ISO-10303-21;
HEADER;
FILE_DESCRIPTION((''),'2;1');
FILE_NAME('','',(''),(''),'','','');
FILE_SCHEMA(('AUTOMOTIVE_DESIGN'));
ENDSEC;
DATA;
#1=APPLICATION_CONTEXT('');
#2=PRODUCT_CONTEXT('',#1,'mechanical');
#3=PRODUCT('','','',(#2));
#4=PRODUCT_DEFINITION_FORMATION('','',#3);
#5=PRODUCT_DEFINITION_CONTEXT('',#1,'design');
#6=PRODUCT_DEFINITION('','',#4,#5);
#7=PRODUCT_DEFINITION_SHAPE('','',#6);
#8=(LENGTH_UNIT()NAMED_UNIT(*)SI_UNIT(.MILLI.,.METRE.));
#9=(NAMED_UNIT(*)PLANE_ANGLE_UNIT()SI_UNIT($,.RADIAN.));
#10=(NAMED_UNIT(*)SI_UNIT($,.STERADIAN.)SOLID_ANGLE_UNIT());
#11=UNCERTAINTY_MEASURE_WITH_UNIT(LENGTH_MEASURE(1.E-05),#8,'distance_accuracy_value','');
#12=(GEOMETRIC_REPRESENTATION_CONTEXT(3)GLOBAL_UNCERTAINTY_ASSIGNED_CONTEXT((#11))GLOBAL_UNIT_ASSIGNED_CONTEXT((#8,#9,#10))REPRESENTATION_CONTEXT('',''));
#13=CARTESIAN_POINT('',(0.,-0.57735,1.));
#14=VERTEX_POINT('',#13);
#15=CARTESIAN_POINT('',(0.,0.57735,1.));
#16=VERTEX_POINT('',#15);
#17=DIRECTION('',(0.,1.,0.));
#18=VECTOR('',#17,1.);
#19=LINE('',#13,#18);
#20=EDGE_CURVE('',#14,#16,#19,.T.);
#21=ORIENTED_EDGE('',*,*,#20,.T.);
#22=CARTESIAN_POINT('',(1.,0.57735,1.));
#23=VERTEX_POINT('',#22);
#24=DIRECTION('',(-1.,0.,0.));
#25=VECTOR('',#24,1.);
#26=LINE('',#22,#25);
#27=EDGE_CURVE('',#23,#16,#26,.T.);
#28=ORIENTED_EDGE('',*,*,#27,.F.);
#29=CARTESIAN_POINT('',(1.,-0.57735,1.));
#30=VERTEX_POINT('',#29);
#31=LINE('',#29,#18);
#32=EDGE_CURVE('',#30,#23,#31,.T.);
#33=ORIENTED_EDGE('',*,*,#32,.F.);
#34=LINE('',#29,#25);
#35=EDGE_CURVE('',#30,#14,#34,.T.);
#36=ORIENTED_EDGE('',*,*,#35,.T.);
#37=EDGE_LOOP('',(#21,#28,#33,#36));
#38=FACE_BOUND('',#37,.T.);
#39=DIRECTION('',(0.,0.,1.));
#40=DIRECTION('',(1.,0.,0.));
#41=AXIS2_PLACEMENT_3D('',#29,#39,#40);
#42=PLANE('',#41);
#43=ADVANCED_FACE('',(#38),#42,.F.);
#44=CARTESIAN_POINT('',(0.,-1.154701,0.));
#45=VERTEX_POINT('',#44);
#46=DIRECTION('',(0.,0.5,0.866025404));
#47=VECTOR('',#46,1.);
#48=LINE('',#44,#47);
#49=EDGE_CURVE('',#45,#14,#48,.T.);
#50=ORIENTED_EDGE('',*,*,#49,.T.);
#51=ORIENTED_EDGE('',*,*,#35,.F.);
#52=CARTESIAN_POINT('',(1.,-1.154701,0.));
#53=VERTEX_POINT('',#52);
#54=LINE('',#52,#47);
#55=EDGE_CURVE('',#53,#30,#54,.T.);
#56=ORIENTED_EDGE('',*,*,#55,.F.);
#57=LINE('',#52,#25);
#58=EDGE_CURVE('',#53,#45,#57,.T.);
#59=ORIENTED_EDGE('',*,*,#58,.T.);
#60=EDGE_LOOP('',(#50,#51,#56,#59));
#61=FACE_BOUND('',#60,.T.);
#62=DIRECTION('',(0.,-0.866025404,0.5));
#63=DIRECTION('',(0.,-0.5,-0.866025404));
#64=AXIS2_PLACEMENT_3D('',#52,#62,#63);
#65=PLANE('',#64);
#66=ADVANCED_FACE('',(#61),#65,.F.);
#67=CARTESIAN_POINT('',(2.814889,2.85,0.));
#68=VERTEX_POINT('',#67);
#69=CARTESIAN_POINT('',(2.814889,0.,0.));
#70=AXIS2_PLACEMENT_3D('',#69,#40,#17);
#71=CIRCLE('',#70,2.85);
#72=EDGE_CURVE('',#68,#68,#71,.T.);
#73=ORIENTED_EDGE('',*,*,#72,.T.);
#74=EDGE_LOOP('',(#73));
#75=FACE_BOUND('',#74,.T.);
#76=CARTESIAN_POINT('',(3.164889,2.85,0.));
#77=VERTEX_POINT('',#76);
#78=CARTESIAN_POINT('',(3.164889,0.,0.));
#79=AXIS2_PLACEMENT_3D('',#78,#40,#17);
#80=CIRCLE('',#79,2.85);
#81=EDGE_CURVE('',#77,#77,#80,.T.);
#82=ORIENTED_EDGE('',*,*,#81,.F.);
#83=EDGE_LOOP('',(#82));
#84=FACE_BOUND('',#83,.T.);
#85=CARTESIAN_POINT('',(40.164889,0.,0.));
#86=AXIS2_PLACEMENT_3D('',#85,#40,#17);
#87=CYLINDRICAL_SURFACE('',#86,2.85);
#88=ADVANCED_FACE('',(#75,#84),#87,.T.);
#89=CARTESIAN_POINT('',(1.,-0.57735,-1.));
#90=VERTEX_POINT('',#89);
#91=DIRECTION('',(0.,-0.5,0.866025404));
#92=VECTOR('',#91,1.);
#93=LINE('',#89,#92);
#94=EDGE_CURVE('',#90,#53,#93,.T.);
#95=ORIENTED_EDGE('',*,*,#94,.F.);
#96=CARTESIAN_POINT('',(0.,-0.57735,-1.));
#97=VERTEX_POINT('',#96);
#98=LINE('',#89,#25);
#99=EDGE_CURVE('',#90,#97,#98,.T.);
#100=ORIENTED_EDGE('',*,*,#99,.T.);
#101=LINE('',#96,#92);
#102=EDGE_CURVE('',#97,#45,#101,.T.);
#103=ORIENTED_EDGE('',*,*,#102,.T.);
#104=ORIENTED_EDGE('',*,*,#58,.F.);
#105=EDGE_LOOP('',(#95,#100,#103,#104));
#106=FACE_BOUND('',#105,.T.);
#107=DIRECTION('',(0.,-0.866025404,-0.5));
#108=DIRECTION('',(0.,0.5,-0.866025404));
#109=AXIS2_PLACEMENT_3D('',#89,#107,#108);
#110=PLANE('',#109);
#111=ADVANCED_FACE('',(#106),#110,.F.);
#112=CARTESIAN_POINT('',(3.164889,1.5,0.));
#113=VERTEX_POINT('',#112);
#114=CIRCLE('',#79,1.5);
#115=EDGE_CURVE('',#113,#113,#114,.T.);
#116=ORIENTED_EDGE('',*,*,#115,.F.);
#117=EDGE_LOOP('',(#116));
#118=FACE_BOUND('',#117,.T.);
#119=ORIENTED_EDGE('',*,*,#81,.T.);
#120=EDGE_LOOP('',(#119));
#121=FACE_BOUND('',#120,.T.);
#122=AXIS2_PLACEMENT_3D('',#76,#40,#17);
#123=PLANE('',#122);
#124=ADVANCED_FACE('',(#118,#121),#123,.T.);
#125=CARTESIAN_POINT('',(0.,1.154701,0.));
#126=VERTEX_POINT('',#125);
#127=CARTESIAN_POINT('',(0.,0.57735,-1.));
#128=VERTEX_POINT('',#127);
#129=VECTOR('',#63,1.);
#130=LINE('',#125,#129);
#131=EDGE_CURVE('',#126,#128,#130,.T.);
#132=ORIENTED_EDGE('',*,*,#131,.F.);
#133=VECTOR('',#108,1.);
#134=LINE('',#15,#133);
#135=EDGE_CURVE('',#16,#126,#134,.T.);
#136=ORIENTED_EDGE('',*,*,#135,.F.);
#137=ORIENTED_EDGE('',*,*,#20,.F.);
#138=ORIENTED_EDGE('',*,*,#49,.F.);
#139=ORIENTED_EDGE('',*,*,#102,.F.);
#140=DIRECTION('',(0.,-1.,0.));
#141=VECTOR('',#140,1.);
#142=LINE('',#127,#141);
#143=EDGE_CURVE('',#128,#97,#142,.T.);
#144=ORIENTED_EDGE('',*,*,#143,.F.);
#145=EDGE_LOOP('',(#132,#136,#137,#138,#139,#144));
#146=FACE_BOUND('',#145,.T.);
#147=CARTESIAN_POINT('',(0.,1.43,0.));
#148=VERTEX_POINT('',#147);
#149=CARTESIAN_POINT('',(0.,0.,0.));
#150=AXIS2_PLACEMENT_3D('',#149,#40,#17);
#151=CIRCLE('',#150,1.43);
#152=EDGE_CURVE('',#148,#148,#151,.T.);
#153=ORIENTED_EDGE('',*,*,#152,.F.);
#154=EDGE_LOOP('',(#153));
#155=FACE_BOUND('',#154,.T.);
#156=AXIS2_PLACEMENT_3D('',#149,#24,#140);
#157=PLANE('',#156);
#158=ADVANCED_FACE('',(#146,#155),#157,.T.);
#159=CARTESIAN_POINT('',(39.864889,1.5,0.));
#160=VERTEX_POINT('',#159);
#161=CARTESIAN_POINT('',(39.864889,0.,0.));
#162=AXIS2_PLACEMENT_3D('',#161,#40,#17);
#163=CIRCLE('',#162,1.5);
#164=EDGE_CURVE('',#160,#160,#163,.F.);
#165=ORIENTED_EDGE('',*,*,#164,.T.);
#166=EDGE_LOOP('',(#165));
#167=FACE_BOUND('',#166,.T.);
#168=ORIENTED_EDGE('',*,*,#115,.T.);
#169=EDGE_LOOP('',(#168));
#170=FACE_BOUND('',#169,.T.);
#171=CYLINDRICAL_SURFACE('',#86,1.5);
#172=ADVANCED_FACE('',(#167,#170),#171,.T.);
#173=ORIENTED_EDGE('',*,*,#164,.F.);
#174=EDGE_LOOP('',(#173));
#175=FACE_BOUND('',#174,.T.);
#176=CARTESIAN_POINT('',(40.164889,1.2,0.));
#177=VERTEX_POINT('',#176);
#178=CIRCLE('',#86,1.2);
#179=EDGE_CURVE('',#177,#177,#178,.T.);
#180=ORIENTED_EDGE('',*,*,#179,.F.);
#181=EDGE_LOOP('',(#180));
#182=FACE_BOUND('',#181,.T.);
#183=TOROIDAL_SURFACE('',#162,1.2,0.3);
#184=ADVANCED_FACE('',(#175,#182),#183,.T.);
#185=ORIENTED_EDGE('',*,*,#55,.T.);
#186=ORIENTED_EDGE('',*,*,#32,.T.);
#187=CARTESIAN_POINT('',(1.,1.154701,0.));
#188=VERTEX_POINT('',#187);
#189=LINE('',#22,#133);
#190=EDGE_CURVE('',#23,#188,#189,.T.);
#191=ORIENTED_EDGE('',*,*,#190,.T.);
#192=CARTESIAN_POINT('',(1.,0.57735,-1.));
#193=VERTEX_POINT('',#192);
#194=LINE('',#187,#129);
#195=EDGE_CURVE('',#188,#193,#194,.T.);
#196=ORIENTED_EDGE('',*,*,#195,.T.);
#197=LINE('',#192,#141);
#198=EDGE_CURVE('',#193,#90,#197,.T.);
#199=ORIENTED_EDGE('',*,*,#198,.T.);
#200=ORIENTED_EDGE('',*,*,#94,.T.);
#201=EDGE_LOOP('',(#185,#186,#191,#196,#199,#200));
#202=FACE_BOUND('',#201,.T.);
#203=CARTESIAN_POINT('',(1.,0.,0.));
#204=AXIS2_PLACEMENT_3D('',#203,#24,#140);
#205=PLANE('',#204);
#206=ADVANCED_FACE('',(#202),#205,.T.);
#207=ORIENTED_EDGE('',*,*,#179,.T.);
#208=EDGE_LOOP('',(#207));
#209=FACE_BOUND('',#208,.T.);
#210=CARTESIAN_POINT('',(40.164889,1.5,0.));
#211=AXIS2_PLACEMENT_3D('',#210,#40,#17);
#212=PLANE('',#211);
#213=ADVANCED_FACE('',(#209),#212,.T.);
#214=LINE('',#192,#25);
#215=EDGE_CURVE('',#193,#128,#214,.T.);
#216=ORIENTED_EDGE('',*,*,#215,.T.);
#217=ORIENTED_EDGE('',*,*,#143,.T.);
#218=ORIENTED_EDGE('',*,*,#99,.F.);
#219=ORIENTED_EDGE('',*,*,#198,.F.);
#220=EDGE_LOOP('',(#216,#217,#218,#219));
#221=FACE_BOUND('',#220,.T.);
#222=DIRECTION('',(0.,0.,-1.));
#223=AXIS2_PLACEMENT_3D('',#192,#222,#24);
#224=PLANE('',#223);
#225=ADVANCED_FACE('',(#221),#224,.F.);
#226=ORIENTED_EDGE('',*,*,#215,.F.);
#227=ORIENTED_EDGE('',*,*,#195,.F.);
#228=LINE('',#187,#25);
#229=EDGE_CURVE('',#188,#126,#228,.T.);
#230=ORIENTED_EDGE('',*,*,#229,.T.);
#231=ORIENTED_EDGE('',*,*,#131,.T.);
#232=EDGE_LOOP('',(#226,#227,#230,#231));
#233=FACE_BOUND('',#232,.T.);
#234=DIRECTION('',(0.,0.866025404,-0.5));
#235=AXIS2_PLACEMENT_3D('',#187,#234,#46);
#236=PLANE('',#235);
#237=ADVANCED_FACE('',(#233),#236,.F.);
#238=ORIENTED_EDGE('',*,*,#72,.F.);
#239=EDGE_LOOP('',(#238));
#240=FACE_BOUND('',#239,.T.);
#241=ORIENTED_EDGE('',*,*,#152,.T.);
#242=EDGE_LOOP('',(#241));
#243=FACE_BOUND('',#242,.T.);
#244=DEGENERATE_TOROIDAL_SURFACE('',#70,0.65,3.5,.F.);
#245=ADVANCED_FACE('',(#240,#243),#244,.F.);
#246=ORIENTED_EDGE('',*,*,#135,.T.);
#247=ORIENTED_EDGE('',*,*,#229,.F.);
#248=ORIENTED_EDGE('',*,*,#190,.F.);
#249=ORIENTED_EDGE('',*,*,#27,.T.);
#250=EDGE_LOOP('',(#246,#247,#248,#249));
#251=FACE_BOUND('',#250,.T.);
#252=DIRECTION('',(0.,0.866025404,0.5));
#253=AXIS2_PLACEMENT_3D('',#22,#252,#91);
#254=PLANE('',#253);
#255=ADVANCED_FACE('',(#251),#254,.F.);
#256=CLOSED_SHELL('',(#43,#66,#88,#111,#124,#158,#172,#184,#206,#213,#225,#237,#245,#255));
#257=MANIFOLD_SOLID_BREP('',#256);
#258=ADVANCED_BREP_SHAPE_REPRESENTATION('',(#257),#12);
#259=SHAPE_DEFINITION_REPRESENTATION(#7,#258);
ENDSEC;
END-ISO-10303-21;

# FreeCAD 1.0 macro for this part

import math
import FreeCAD as App
import Part
import Sketcher
Q = App.Units.Quantity


def edges_at(feature, points):
    """Names of the edges that pass closest to the given points."""
    edges = feature.Shape.Edges
    near = lambda p: min(range(len(edges)), key=lambda i: edges[i].distToShape(Part.Vertex(*p))[0])
    return sorted({f"Edge{near(p) + 1}" for p in points})

doc = App.newDocument("Part")
body = doc.addObject("PartDesign::Body", "Body")

sketch1 = body.newObject("Sketcher::SketchObject", "Sketch")
sketch1.AttachmentSupport = (doc.getObject("XY_Plane"), [""])
sketch1.MapMode = "FlatFace"
sketch1.addGeometry([
    Part.LineSegment(App.Vector(0, 0, 0), App.Vector(40.16, 0, 0)),
    Part.LineSegment(App.Vector(40.16, 0, 0), App.Vector(40.16, 1.5, 0)),
    Part.LineSegment(App.Vector(40.16, 1.5, 0), App.Vector(3.16, 1.5, 0)),
    Part.LineSegment(App.Vector(3.16, 1.5, 0), App.Vector(3.16, 2.85, 0)),
    Part.LineSegment(App.Vector(3.16, 2.85, 0), App.Vector(2.81, 2.85, 0)),
    Part.ArcOfCircle(Part.Circle(App.Vector(2.81, -0.65, 0), App.Vector(0, 0, 1), 3.5), math.radians(90), math.radians(144)),
    Part.LineSegment(App.Vector(0, 1.43, 0), App.Vector(0, 0, 0)),
], False)
sketch1.addConstraint([
    Sketcher.Constraint("Coincident", 0, 2, 1, 1),
    Sketcher.Constraint("Coincident", 1, 2, 2, 1),
    Sketcher.Constraint("Coincident", 2, 2, 3, 1),
    Sketcher.Constraint("Coincident", 3, 2, 4, 1),
    Sketcher.Constraint("Tangent", 4, 2, 5, 1),
    Sketcher.Constraint("Coincident", 5, 2, 6, 1),
    Sketcher.Constraint("Coincident", 6, 2, 0, 1),
    Sketcher.Constraint("Horizontal", 0),
    Sketcher.Constraint("Vertical", 1),
    Sketcher.Constraint("Horizontal", 2),
    Sketcher.Constraint("Vertical", 3),
    Sketcher.Constraint("Horizontal", 4),
    Sketcher.Constraint("Vertical", 6),
    Sketcher.Constraint("Coincident", 6, 2, -1, 1),
    Sketcher.Constraint("Radius", 5, Q("3.5 mm")),
    Sketcher.Constraint("DistanceX", 2, 2, 2, 1, Q("37 mm")),
    Sketcher.Constraint("DistanceY", 1, 1, 1, 2, Q("1.5 mm")),
    Sketcher.Constraint("DistanceX", 4, 2, 4, 1, Q("0.35 mm")),
    Sketcher.Constraint("DistanceY", 3, 1, 3, 2, Q("1.35 mm")),
    Sketcher.Constraint("DistanceY", 6, 2, 6, 1, Q("1.43 mm")),
])
revolution = body.newObject("PartDesign::Revolution", "Revolution")
revolution.Profile = sketch1
revolution.ReferenceAxis = (sketch1, ["H_Axis"])
revolution.Angle = 360
doc.recompute()

fillet = body.newObject("PartDesign::Fillet", "Fillet")
fillet.Base = (revolution, edges_at(revolution, [(40.165, -1.5, 0)]))
fillet.Radius = 0.3

sketch2 = body.newObject("Sketcher::SketchObject", "Sketch001")
sketch2.AttachmentSupport = (doc.getObject("YZ_Plane"), [""])
sketch2.MapMode = "FlatFace"
sketch2.addGeometry([
    Part.LineSegment(App.Vector(1.2, 0, 0), App.Vector(0.6, -1, 0)),
    Part.LineSegment(App.Vector(0.6, -1, 0), App.Vector(-0.6, -1, 0)),
    Part.LineSegment(App.Vector(-0.6, -1, 0), App.Vector(-1.2, 0, 0)),
    Part.LineSegment(App.Vector(-1.2, 0, 0), App.Vector(-0.6, 1, 0)),
    Part.LineSegment(App.Vector(-0.6, 1, 0), App.Vector(0.6, 1, 0)),
    Part.LineSegment(App.Vector(0.6, 1, 0), App.Vector(1.2, 0, 0)),
], False)
sketch2.addConstraint([
    Sketcher.Constraint("Coincident", 0, 2, 1, 1),
    Sketcher.Constraint("Coincident", 1, 2, 2, 1),
    Sketcher.Constraint("Coincident", 2, 2, 3, 1),
    Sketcher.Constraint("Coincident", 3, 2, 4, 1),
    Sketcher.Constraint("Coincident", 4, 2, 5, 1),
    Sketcher.Constraint("Coincident", 5, 2, 0, 1),
    Sketcher.Constraint("Horizontal", 1),
    Sketcher.Constraint("Horizontal", 4),
    Sketcher.Constraint("Symmetric", 0, 2, 3, 2, -1, 1),
    Sketcher.Constraint("Symmetric", 2, 2, 5, 2, -1, 1),
    Sketcher.Constraint("PointOnObject", 2, 2, -1),
    Sketcher.Constraint("Parallel", 2, 5),
    Sketcher.Constraint("Vertical", 1, 2, 3, 2),
    Sketcher.Constraint("Angle", 0, Q("-120 deg")),
    Sketcher.Constraint("DistanceY", 0, 2, -1, 1, Q("1 mm")),
    Sketcher.Constraint("DistanceX", 1, 2, 1, 1, Q("1.154701 mm")),
])
pocket1 = body.newObject("PartDesign::Pocket", "Pocket")
pocket1.Profile = sketch2
pocket1.Length = 1
pocket1.Reversed = True

doc.recompute()
